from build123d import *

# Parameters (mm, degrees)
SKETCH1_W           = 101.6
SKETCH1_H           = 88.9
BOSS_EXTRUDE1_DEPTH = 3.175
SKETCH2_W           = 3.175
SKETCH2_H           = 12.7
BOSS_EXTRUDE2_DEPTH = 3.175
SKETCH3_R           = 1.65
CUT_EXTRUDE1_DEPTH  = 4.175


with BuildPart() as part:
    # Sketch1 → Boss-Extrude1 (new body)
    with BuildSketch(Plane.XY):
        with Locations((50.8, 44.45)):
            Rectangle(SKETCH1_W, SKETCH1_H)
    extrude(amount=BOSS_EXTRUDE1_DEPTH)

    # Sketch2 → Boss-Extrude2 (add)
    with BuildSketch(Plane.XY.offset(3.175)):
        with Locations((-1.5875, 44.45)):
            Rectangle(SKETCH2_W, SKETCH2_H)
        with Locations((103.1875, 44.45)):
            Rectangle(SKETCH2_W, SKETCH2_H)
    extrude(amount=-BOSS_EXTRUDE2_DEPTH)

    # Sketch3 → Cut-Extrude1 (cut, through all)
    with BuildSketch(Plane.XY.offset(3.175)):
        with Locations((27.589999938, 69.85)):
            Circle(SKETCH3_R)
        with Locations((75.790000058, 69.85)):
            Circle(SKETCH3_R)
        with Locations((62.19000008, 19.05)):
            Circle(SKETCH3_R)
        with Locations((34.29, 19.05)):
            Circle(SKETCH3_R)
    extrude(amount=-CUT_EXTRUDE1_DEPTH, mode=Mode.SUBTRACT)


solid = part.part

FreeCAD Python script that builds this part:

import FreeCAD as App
import Part
import Sketcher
Q = App.Units.Quantity

doc = App.newDocument("Part")
body = doc.addObject("PartDesign::Body", "Body")

# Sketch on XY plane
sketch1 = doc.addObject("Sketcher::SketchObject", "Sketch")
body.addObject(sketch1)
sketch1.AttachmentSupport = (doc.XY_Plane, [""])
sketch1.MapMode = "FlatFace"
sketch1.addGeometry([
    Part.LineSegment(App.Vector(0, 88.9, 0), App.Vector(0, 0, 0)),
    Part.LineSegment(App.Vector(0, 0, 0), App.Vector(101.6, 0, 0)),
    Part.LineSegment(App.Vector(101.6, 0, 0), App.Vector(101.6, 88.9, 0)),
    Part.LineSegment(App.Vector(101.6, 88.9, 0), App.Vector(0, 88.9, 0)),
], False)
sketch1.addConstraint([
    Sketcher.Constraint("Coincident", 0, 2, 1, 1),
    Sketcher.Constraint("Coincident", 1, 2, 2, 1),
    Sketcher.Constraint("Coincident", 2, 2, 3, 1),
    Sketcher.Constraint("Coincident", 3, 2, 0, 1),
    Sketcher.Constraint("Vertical", 0),
    Sketcher.Constraint("Horizontal", 1),
    Sketcher.Constraint("Vertical", 2),
    Sketcher.Constraint("Horizontal", 3),
    Sketcher.Constraint("Coincident", 0, 2, -1, 1),
    Sketcher.Constraint("DistanceX", 1, 1, 1, 2, Q("4 in")),
    Sketcher.Constraint("DistanceY", 0, 2, 0, 1, Q("3.5 in")),
])
pad1 = doc.addObject("PartDesign::Pad", "Pad")
body.addObject(pad1)
pad1.Profile = sketch1
pad1.Length = Q("0.125 in")

# Sketch on XY plane
sketch2 = doc.addObject("Sketcher::SketchObject", "Sketch001")
body.addObject(sketch2)
sketch2.AttachmentSupport = (doc.XY_Plane, [""])
sketch2.MapMode = "FlatFace"
sketch2.AttachmentOffset = App.Placement(App.Vector(0, 0, 0.125 * 25.4), App.Rotation())
sketch2.addGeometry([
    Part.LineSegment(App.Vector(-3.175, 50.8, 0), App.Vector(-3.175, 38.1, 0)),  # 0
    Part.LineSegment(App.Vector(-3.175, 38.1, 0), App.Vector(0, 38.1, 0)),  # 1
    Part.LineSegment(App.Vector(0, 38.1, 0), App.Vector(0, 50.8, 0)),  # 2
    Part.LineSegment(App.Vector(0, 50.8, 0), App.Vector(-3.175, 50.8, 0)),  # 3
    Part.LineSegment(App.Vector(101.6, 50.8, 0), App.Vector(101.6, 38.1, 0)),  # 4
    Part.LineSegment(App.Vector(101.6, 38.1, 0), App.Vector(104.775, 38.1, 0)),  # 5
    Part.LineSegment(App.Vector(104.775, 38.1, 0), App.Vector(104.775, 50.8, 0)),  # 6
    Part.LineSegment(App.Vector(104.775, 50.8, 0), App.Vector(101.6, 50.8, 0)),  # 7
], False)
sketch2.addConstraint([
    Sketcher.Constraint("Coincident", 0, 2, 1, 1),
    Sketcher.Constraint("Coincident", 1, 2, 2, 1),
    Sketcher.Constraint("Coincident", 2, 2, 3, 1),
    Sketcher.Constraint("Coincident", 3, 2, 0, 1),
    Sketcher.Constraint("Coincident", 4, 2, 5, 1),
    Sketcher.Constraint("Coincident", 5, 2, 6, 1),
    Sketcher.Constraint("Coincident", 6, 2, 7, 1),
    Sketcher.Constraint("Coincident", 7, 2, 4, 1),
    Sketcher.Constraint("Vertical", 0),
    Sketcher.Constraint("Horizontal", 1),
    Sketcher.Constraint("Vertical", 2),
    Sketcher.Constraint("Horizontal", 3),
    Sketcher.Constraint("Vertical", 4),
    Sketcher.Constraint("Horizontal", 5),
    Sketcher.Constraint("Vertical", 6),
    Sketcher.Constraint("Horizontal", 7),
    Sketcher.Constraint("PointOnObject", 1, 2, -2),
    Sketcher.Constraint("Horizontal", 1, 2, 4, 2),
    Sketcher.Constraint("Horizontal", 3, 2, 6, 2),
    Sketcher.Constraint("Equal", 3, 5),
    Sketcher.Constraint("DistanceY", 0, 2, 0, 1, Q("0.5 in")),
    Sketcher.Constraint("DistanceY", -1, 1, 2, 2, Q("2 in")),
    Sketcher.Constraint("DistanceX", -1, 1, 4, 2, Q("4 in")),
    Sketcher.Constraint("DistanceX", 1, 1, 1, 2, Q("0.125 in")),
])
pad2 = doc.addObject("PartDesign::Pad", "Pad001")
body.addObject(pad2)
pad2.Profile = sketch2
pad2.Length = Q("0.125 in")
pad2.Reversed = True

# Sketch on XY plane
sketch3 = doc.addObject("Sketcher::SketchObject", "Sketch002")
body.addObject(sketch3)
sketch3.AttachmentSupport = (doc.XY_Plane, [""])
sketch3.MapMode = "FlatFace"
sketch3.AttachmentOffset = App.Placement(App.Vector(0, 0, 0.125 * 25.4), App.Rotation())
sketch3.addGeometry([
    Part.Circle(App.Vector(27.59, 69.85, 0), App.Vector(0, 0, 1), 1.65),
    Part.Circle(App.Vector(75.79, 69.85, 0), App.Vector(0, 0, 1), 1.65),
    Part.Circle(App.Vector(62.19, 19.05, 0), App.Vector(0, 0, 1), 1.65),
    Part.Circle(App.Vector(34.29, 19.05, 0), App.Vector(0, 0, 1), 1.65),
], False)
sketch3.addConstraint([
    Sketcher.Constraint("Equal", 0, 1),
    Sketcher.Constraint("Equal", 1, 2),
    Sketcher.Constraint("Equal", 2, 3),
    Sketcher.Constraint("Horizontal", 0, 3, 1, 3),
    Sketcher.Constraint("Horizontal", 2, 3, 3, 3),
    Sketcher.Constraint("DistanceY", 2, 3, 1, 3, Q("2 in")),
    Sketcher.Constraint("Diameter", 0, 3.3),
    Sketcher.Constraint("DistanceY", -1, 1, 0, 3, Q("2.75 in")),
    Sketcher.Constraint("DistanceX", -1, 1, 3, 3, Q("1.35 in")),
    Sketcher.Constraint("DistanceX", -1, 1, 0, 3, 27.59),
    Sketcher.Constraint("DistanceX", -1, 1, 1, 3, 75.79),
    Sketcher.Constraint("DistanceX", -1, 1, 2, 3, 62.19),
])
pocket1 = doc.addObject("PartDesign::Pocket", "Pocket")
body.addObject(pocket1)
pocket1.Profile = sketch3
pocket1.Type = "ThroughAll"

doc.recompute()
